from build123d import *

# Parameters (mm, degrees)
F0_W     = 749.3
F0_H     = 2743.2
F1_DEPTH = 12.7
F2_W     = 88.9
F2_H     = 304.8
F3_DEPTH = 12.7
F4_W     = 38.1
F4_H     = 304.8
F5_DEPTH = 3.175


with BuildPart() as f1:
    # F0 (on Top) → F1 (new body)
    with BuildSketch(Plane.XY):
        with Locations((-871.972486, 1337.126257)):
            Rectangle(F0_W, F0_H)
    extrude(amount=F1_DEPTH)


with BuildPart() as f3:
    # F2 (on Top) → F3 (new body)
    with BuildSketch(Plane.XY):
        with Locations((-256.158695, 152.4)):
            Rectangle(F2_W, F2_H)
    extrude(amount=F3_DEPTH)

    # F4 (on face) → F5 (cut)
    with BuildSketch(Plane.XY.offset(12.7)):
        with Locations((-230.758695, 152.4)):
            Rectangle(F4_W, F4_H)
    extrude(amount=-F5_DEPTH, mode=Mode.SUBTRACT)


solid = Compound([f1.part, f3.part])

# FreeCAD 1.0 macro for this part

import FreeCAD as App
import Part
import Sketcher

V = App.Vector
Q = App.Units.Quantity


def add_polygon(sketch, points):
    """Adds a closed chain of lines whose ends are joined by coincident constraints."""
    first, n = sketch.GeometryCount, len(points)
    for a, b in zip(points, points[1:] + points[:1]):
        sketch.addGeometry(Part.LineSegment(App.Vector(*a, 0), App.Vector(*b, 0)), False)
    for i in range(n):
        sketch.addConstraint(Sketcher.Constraint("Coincident", first + i, 2, first + (i + 1) % n, 1))

doc = App.newDocument("Part")
params = doc.addObject("Spreadsheet::Sheet", "Params")
for row, (alias, value) in enumerate([
    ("sketch1_height", "108 in"),
    ("sketch1_width", "29.5 in"),
    ("pad1_length", "0.5 in"),
    ("sketch2_height", "12 in"),
    ("sketch2_width", "3.5 in"),
    ("pad2_length", "0.5 in"),
    ("sketch3_height", "12 in"),
    ("sketch3_width", "1.5 in"),
    ("pocket1_length", "0.125 in"),
], start=1):
    params.set(f"A{row}", alias)
    params.set(f"B{row}", "=" + value)
    params.setAlias(f"B{row}", alias)

body = doc.addObject("PartDesign::Body", "Body")

# Sketch on XY plane
sketch1 = body.newObject("Sketcher::SketchObject", "Sketch")
sketch1.AttachmentSupport = (doc.getObject("XY_Plane"), [""])
sketch1.MapMode = "FlatFace"
add_polygon(sketch1, [(-1246.622486, 2708.726257), (-1246.622486, -34.473743), (-497.322486, -34.473743), (-497.322486, 2708.726257)])  # lines 0-3
sketch1.addConstraint([
    Sketcher.Constraint("Vertical", 0),
    Sketcher.Constraint("Horizontal", 1),
    Sketcher.Constraint("Vertical", 2),
    Sketcher.Constraint("Horizontal", 3),
    Sketcher.Constraint("DistanceY", 0, 2, 0, 1, Q("108 in")),
    Sketcher.Constraint("DistanceX", 1, 1, 1, 2, Q("29.5 in")),
    Sketcher.Constraint("DistanceX", 0, 2, -1, 1, Q("1246.622486 mm")),
    Sketcher.Constraint("DistanceY", 0, 2, -1, 1, Q("34.473743 mm")),
])
sketch1.setExpression("Constraints[8]", "Params.sketch1_height")
sketch1.setExpression("Constraints[9]", "Params.sketch1_width")
pad1 = body.newObject("PartDesign::Pad", "Pad")
pad1.Profile = sketch1
pad1.setExpression("Length", "Params.pad1_length")
body2 = doc.addObject("PartDesign::Body", "Body001")

# Sketch on XY plane
sketch2 = body2.newObject("Sketcher::SketchObject", "Sketch001")
sketch2.AttachmentSupport = (doc.getObject("XY_Plane001"), [""])
sketch2.MapMode = "FlatFace"
add_polygon(sketch2, [(-300.608695, 304.8), (-300.608695, 0), (-211.708695, 0), (-211.708695, 304.8)])  # lines 0-3
sketch2.addConstraint([
    Sketcher.Constraint("Vertical", 0),
    Sketcher.Constraint("Horizontal", 1),
    Sketcher.Constraint("Vertical", 2),
    Sketcher.Constraint("Horizontal", 3),
    Sketcher.Constraint("PointOnObject", 0, 2, -1),
    Sketcher.Constraint("DistanceY", 0, 2, 0, 1, Q("12 in")),
    Sketcher.Constraint("DistanceX", 1, 1, 1, 2, Q("3.5 in")),
    Sketcher.Constraint("DistanceX", 0, 2, -1, 1, Q("300.608695 mm")),
])
sketch2.setExpression("Constraints[9]", "Params.sketch2_height")
sketch2.setExpression("Constraints[10]", "Params.sketch2_width")
pad2 = body2.newObject("PartDesign::Pad", "Pad001")
pad2.Profile = sketch2
pad2.setExpression("Length", "Params.pad2_length")

# Sketch on XY plane
sketch3 = body2.newObject("Sketcher::SketchObject", "Sketch002")
sketch3.AttachmentSupport = (doc.getObject("XY_Plane001"), [""])
sketch3.MapMode = "FlatFace"
sketch3.AttachmentOffset = App.Placement(V(0, 0, 0.5 * 25.4), App.Rotation())
add_polygon(sketch3, [(-249.808695, 304.8), (-249.808695, 0), (-211.708695, 0), (-211.708695, 304.8)])  # lines 0-3
sketch3.addConstraint([
    Sketcher.Constraint("Vertical", 0),
    Sketcher.Constraint("Horizontal", 1),
    Sketcher.Constraint("Vertical", 2),
    Sketcher.Constraint("Horizontal", 3),
    Sketcher.Constraint("PointOnObject", 0, 2, -1),
    Sketcher.Constraint("DistanceY", 0, 2, 0, 1, Q("12 in")),
    Sketcher.Constraint("DistanceX", 1, 1, 1, 2, Q("1.5 in")),
    Sketcher.Constraint("DistanceX", 0, 2, -1, 1, Q("249.808695 mm")),
])
sketch3.setExpression("Constraints[9]", "Params.sketch3_height")
sketch3.setExpression("Constraints[10]", "Params.sketch3_width")
pocket1 = body2.newObject("PartDesign::Pocket", "Pocket")
pocket1.Profile = sketch3
pocket1.setExpression("Length", "Params.pocket1_length")

doc.recompute()
